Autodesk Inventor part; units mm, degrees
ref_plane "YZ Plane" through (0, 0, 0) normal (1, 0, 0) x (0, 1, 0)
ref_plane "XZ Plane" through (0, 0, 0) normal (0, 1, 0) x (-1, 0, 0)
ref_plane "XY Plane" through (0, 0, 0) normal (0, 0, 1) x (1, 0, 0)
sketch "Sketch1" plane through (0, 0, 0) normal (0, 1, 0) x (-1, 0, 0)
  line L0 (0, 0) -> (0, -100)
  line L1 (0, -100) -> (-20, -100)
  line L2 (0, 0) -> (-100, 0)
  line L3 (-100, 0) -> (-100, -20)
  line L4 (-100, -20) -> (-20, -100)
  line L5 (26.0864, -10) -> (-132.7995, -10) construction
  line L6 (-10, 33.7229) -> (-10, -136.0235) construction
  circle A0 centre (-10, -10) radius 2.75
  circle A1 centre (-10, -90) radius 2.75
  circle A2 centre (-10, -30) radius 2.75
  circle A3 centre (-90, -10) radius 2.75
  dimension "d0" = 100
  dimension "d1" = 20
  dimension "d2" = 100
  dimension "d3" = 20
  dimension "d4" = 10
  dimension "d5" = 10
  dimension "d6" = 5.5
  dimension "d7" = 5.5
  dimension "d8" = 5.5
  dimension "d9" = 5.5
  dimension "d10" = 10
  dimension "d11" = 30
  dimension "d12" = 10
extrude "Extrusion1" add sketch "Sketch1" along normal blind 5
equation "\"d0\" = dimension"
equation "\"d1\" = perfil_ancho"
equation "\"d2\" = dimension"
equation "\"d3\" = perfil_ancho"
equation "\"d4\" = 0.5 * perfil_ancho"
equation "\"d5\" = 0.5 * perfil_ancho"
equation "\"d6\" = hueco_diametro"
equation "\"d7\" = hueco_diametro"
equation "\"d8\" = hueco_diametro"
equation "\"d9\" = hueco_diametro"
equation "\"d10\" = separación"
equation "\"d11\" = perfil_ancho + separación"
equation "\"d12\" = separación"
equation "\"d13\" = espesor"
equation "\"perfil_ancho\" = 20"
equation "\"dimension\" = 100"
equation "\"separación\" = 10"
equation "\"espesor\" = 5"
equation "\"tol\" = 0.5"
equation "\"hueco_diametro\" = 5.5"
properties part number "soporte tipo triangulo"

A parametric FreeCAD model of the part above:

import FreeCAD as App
import Part
import Sketcher
Q = App.Units.Quantity


def add_polygon(sketch, points):
    """Adds a closed chain of lines whose ends are joined by coincident constraints."""
    first, n = sketch.GeometryCount, len(points)
    for a, b in zip(points, points[1:] + points[:1]):
        sketch.addGeometry(Part.LineSegment(App.Vector(*a, 0), App.Vector(*b, 0)), False)
    for i in range(n):
        sketch.addConstraint(Sketcher.Constraint("Coincident", first + i, 2, first + (i + 1) % n, 1))

doc = App.newDocument("Part")
body = doc.addObject("PartDesign::Body", "Body")

# Sketch on XZ plane
sketch1 = body.newObject("Sketcher::SketchObject", "Sketch")
sketch1.AttachmentSupport = (doc.getObject("XZ_Plane"), [""])
sketch1.MapMode = "FlatFace"
add_polygon(sketch1, [(0, -100), (0, 0), (100, 0), (100, -20), (20, -100)])  # lines 0-4
sketch1.addGeometry(Part.Circle(App.Vector(10, -90, 0), App.Vector(0, 0, 1), 2.8), False)  # 5
sketch1.addGeometry(Part.Circle(App.Vector(90, -10, 0), App.Vector(0, 0, 1), 2.8), False)  # 6
sketch1.addGeometry(Part.Circle(App.Vector(10, -30, 0), App.Vector(0, 0, 1), 2.8), False)  # 7
sketch1.addGeometry(Part.Circle(App.Vector(10, -10, 0), App.Vector(0, 0, 1), 2.8), False)  # 8
sketch1.addConstraint([
    Sketcher.Constraint("Vertical", 0),
    Sketcher.Constraint("Horizontal", 1),
    Sketcher.Constraint("Vertical", 2),
    Sketcher.Constraint("Horizontal", 4),
    Sketcher.Constraint("Coincident", 0, 2, -1, 1),
    Sketcher.Constraint("Equal", 5, 6),
    Sketcher.Constraint("Equal", 6, 7),
    Sketcher.Constraint("Equal", 7, 8),
    Sketcher.Constraint("Horizontal", 6, 3, 8, 3),
    Sketcher.Constraint("Vertical", 5, 3, 7, 3),
    Sketcher.Constraint("Vertical", 7, 3, 8, 3),
    Sketcher.Constraint("Equal", 1, 0),
    Sketcher.Constraint("Equal", 4, 2),
    Sketcher.Constraint("Diameter", 5, Q("5.5 mm")),
    Sketcher.Constraint("DistanceX", 1, 1, 1, 2, Q("100 mm")),
    Sketcher.Constraint("DistanceX", 4, 2, 4, 1, Q("20 mm")),
    Sketcher.Constraint("DistanceX", -1, 1, 5, 3, Q("10 mm")),
    Sketcher.Constraint("DistanceY", 6, 3, -1, 1, Q("10 mm")),
    Sketcher.Constraint("DistanceY", 7, 3, -1, 1, Q("30 mm")),
    Sketcher.Constraint("DistanceX", 6, 3, 1, 2, Q("10 mm")),
    Sketcher.Constraint("DistanceY", 3, 2, 5, 3, Q("10 mm")),
])
pad1 = body.newObject("PartDesign::Pad", "Pad")
pad1.Profile = sketch1
pad1.Length = 5
pad1.Reversed = True

doc.recompute()
